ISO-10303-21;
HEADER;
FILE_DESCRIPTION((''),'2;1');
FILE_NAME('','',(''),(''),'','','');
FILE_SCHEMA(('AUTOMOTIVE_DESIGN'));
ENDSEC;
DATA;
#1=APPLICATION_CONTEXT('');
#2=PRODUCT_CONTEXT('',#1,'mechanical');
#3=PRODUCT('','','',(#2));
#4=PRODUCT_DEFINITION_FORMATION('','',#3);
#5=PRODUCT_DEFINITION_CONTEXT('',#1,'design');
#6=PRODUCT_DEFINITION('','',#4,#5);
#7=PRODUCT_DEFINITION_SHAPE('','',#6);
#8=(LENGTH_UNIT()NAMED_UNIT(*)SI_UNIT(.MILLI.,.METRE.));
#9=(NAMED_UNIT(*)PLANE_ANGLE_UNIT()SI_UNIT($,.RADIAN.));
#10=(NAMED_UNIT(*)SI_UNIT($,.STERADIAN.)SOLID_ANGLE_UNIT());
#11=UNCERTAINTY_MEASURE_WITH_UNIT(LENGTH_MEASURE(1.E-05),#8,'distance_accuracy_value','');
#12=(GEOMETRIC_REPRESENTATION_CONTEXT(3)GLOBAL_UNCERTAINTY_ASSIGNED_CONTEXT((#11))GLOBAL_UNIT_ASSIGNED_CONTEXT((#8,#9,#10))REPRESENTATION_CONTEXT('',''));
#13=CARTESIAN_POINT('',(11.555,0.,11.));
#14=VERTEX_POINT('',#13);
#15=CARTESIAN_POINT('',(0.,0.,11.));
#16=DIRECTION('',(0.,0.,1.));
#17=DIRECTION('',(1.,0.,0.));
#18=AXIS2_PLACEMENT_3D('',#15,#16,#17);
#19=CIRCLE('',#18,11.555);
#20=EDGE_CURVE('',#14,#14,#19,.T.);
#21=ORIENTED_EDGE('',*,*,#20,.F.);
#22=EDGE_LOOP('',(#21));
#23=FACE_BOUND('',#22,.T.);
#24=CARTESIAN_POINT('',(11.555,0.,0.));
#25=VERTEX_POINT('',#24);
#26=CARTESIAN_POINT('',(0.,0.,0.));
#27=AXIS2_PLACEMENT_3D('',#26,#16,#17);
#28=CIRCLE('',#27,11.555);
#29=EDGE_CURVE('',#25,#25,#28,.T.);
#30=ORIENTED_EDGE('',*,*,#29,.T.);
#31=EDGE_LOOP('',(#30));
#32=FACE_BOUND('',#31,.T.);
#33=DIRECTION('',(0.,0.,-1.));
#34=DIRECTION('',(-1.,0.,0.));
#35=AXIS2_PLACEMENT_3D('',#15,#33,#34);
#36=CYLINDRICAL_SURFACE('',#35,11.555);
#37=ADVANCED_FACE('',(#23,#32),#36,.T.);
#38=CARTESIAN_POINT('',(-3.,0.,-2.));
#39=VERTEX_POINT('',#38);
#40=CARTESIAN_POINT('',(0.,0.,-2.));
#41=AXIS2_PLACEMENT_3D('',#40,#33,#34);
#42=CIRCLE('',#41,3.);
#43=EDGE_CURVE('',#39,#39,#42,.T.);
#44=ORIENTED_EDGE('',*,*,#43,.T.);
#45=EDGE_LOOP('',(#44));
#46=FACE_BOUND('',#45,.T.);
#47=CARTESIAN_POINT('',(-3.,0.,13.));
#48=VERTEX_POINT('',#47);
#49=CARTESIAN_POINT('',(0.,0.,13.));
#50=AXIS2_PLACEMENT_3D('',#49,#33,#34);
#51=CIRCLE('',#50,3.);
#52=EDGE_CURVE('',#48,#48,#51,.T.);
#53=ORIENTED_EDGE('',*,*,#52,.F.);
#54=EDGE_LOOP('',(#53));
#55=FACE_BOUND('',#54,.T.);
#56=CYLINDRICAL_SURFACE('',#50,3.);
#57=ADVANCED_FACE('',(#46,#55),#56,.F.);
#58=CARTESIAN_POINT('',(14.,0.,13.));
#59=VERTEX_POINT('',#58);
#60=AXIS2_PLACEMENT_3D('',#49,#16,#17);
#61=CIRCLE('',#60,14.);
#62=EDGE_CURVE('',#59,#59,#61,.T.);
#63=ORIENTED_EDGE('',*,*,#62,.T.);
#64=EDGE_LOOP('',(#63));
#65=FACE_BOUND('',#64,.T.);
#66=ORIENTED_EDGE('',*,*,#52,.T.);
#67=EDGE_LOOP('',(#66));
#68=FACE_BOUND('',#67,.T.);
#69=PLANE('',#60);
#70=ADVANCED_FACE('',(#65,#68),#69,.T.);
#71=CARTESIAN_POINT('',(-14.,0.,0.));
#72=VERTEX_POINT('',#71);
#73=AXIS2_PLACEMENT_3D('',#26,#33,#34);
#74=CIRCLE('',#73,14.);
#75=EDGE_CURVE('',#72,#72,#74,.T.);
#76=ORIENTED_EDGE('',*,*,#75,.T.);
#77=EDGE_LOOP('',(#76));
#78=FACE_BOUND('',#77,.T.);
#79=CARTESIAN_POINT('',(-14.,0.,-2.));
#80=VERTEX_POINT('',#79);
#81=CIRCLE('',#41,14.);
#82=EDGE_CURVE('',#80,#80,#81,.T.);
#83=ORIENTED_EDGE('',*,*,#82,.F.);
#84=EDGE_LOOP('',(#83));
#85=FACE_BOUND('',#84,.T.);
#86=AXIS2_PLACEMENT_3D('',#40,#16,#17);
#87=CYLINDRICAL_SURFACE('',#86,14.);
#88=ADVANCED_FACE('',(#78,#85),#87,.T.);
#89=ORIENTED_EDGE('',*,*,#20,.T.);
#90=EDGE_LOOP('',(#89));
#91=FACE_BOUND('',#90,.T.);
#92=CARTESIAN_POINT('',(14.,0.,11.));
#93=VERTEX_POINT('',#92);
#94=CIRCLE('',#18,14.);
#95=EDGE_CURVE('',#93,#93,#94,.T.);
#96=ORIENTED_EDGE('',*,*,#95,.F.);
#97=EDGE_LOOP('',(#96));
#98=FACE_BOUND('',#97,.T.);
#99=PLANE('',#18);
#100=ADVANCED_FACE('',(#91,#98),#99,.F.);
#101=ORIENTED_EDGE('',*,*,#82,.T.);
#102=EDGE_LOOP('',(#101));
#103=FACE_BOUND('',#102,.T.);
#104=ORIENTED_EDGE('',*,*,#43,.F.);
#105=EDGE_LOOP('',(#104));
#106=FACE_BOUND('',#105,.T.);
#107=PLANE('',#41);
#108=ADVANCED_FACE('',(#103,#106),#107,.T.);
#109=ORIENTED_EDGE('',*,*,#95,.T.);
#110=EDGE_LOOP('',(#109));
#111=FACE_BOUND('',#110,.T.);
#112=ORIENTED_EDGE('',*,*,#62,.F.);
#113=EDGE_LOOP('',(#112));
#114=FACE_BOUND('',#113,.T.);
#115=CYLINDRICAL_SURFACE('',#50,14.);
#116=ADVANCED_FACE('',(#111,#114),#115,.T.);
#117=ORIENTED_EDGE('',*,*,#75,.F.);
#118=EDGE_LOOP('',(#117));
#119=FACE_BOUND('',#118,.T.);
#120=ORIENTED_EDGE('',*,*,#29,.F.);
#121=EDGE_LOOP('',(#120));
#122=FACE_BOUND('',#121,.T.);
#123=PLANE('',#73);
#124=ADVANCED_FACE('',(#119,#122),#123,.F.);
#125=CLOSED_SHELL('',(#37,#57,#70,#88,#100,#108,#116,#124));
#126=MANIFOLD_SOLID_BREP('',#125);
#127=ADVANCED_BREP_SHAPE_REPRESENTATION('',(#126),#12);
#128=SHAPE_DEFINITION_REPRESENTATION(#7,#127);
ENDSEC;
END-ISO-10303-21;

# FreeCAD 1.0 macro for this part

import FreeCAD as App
import Part
import Sketcher
from FreeCAD import Vector

doc = App.newDocument("Part")
body = doc.addObject("PartDesign::Body", "Body")

sketch1 = doc.addObject("Sketcher::SketchObject", "Sketch")
body.addObject(sketch1)
sketch1.AttachmentSupport = (doc.XY_Plane, [""])
sketch1.MapMode = "FlatFace"
sketch1.addGeometry(Part.Circle(Vector(0, 0, 0), Vector(0, 0, 1), 12), False)
sketch1.addConstraint(Sketcher.Constraint("Coincident", 0, 3, -1, 1))
sketch1.addConstraint(Sketcher.Constraint("Diameter", 0, 23.11))
pad1 = doc.addObject("PartDesign::Pad", "Pad")
body.addObject(pad1)
pad1.Profile = sketch1
pad1.Length = 11

sketch2 = doc.addObject("Sketcher::SketchObject", "Sketch001")
body.addObject(sketch2)
sketch2.AttachmentSupport = (doc.XY_Plane, [""])
sketch2.MapMode = "FlatFace"
sketch2.AttachmentOffset = App.Placement(Vector(0, 0, 11), App.Rotation())
sketch2.addGeometry(Part.Circle(Vector(0, 0, 0), Vector(0, 0, 1), 14), False)
sketch2.addConstraint(Sketcher.Constraint("Coincident", 0, 3, -1, 1))
sketch2.addConstraint(Sketcher.Constraint("Diameter", 0, 28.0))
pad2 = doc.addObject("PartDesign::Pad", "Pad001")
body.addObject(pad2)
pad2.Profile = sketch2
pad2.Length = 2

sketch3 = doc.addObject("Sketcher::SketchObject", "Sketch002")
body.addObject(sketch3)
sketch3.AttachmentSupport = (doc.XY_Plane, [""])
sketch3.MapMode = "FlatFace"
sketch3.AttachmentOffset = App.Placement(Vector(0, 0, -2), App.Rotation())
sketch3.addGeometry(Part.Circle(Vector(0, 0, 0), Vector(0, 0, 1), 14), False)
sketch3.addConstraint(Sketcher.Constraint("Coincident", 0, 3, -1, 1))
sketch3.addConstraint(Sketcher.Constraint("Diameter", 0, 28.0))
pad3 = doc.addObject("PartDesign::Pad", "Pad002")
body.addObject(pad3)
pad3.Profile = sketch3
pad3.Length = 2

sketch4 = doc.addObject("Sketcher::SketchObject", "Sketch003")
body.addObject(sketch4)
sketch4.AttachmentSupport = (doc.XY_Plane, [""])
sketch4.MapMode = "FlatFace"
sketch4.AttachmentOffset = App.Placement(Vector(0, 0, -2), App.Rotation())
sketch4.addGeometry(Part.Circle(Vector(0, 0, 0), Vector(0, 0, 1), 3), False)
sketch4.addConstraint(Sketcher.Constraint("Coincident", 0, 3, -1, 1))
sketch4.addConstraint(Sketcher.Constraint("Diameter", 0, 6.0))
pocket1 = doc.addObject("PartDesign::Pocket", "Pocket")
body.addObject(pocket1)
pocket1.Profile = sketch4
pocket1.Type = "ThroughAll"
pocket1.Reversed = True

doc.recompute()
